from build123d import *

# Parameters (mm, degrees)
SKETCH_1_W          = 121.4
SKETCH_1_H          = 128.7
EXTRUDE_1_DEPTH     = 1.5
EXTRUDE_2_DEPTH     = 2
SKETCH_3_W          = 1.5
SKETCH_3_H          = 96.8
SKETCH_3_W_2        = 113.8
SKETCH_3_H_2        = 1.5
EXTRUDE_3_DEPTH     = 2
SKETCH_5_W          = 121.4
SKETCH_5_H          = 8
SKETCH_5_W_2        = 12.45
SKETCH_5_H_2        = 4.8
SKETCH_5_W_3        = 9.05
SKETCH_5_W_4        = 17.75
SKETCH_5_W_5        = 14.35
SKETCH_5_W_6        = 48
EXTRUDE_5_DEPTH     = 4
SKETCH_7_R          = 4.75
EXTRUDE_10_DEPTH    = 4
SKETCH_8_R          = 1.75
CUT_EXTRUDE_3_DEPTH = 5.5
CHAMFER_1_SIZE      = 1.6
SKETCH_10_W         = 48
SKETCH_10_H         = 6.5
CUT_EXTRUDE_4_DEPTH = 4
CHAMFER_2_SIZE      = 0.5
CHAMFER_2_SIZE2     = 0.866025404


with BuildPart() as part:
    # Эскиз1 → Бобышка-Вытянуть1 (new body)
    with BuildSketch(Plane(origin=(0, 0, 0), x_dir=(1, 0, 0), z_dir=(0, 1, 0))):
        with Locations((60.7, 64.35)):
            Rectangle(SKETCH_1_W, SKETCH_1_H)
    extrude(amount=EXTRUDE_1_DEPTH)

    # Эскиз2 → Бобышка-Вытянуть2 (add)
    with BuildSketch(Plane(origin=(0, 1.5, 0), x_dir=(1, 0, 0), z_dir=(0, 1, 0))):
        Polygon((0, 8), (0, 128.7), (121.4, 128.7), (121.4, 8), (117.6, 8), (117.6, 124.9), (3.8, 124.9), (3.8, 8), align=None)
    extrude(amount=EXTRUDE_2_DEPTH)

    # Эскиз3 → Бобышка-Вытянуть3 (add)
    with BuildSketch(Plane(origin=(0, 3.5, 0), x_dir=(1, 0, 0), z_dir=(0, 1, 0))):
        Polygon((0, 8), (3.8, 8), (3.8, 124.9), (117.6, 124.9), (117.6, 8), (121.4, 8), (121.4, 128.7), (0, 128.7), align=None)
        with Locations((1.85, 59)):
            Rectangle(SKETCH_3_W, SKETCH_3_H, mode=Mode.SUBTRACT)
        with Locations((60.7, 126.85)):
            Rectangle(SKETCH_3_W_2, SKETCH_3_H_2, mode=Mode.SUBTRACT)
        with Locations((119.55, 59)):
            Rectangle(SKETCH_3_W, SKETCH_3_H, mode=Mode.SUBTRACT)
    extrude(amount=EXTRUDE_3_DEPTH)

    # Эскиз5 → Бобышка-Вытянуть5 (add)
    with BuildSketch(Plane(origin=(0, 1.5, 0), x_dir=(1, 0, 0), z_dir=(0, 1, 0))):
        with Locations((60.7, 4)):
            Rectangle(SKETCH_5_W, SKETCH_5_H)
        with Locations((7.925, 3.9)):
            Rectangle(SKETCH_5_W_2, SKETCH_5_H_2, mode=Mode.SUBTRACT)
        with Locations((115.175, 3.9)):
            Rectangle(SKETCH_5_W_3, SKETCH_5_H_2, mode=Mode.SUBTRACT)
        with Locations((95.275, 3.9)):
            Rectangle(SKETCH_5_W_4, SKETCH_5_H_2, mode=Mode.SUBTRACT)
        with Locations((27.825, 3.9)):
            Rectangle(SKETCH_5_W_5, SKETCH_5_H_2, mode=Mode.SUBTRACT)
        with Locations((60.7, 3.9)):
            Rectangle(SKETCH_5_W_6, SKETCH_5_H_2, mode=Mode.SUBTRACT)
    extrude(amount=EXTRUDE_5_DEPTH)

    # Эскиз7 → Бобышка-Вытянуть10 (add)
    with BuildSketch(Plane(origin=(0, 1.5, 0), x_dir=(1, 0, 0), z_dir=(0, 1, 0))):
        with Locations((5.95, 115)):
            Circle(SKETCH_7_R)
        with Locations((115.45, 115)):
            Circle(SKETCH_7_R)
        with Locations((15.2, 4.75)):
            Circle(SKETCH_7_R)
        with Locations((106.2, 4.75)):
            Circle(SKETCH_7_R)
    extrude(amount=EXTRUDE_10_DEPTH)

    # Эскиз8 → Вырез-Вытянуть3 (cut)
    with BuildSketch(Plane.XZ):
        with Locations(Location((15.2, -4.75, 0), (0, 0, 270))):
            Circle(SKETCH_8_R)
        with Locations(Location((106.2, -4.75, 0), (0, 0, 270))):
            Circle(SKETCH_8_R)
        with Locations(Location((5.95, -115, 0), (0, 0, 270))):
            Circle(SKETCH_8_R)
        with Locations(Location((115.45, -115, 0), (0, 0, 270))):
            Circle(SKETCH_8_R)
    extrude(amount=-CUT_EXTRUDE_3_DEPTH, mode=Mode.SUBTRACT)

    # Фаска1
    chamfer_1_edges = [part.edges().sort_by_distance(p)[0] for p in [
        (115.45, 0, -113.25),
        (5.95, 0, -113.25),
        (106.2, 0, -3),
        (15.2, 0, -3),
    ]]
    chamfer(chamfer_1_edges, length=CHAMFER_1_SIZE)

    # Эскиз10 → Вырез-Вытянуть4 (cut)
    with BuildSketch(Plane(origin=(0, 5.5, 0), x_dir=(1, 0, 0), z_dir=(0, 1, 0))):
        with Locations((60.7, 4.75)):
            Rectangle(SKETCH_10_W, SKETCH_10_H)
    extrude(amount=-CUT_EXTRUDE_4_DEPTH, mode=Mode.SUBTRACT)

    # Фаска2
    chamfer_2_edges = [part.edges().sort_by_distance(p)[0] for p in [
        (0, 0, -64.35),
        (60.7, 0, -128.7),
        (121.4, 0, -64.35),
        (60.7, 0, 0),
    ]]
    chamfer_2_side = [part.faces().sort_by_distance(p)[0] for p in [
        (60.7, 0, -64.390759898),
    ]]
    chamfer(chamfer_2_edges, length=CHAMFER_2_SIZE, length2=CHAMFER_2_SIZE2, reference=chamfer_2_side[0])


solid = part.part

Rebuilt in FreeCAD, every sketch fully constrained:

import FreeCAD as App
import Part
import Sketcher


def edges_at(feature, points):
    """Names of the edges that pass closest to the given points."""
    edges = feature.Shape.Edges
    near = lambda p: min(range(len(edges)), key=lambda i: edges[i].distToShape(Part.Vertex(*p))[0])
    return sorted({f"Edge{near(p) + 1}" for p in points})

doc = App.newDocument("Part")
body = doc.addObject("PartDesign::Body", "Body")

# Sketch on XZ plane
sketch1 = body.newObject("Sketcher::SketchObject", "Sketch")
sketch1.AttachmentSupport = (doc.getObject("XZ_Plane"), [""])
sketch1.MapMode = "FlatFace"
sketch1.addGeometry(Part.LineSegment(App.Vector(0, -128.7, 0), App.Vector(0, 0, 0)), False)
sketch1.addGeometry(Part.LineSegment(App.Vector(0, 0, 0), App.Vector(121.4, 0, 0)), False)
sketch1.addGeometry(Part.LineSegment(App.Vector(121.4, 0, 0), App.Vector(121.4, -128.7, 0)), False)
sketch1.addGeometry(Part.LineSegment(App.Vector(121.4, -128.7, 0), App.Vector(0, -128.7, 0)), False)
sketch1.addConstraint(Sketcher.Constraint("Coincident", 0, 2, 1, 1))
sketch1.addConstraint(Sketcher.Constraint("Coincident", 1, 2, 2, 1))
sketch1.addConstraint(Sketcher.Constraint("Coincident", 2, 2, 3, 1))
sketch1.addConstraint(Sketcher.Constraint("Coincident", 3, 2, 0, 1))
sketch1.addConstraint(Sketcher.Constraint("Vertical", 0))
sketch1.addConstraint(Sketcher.Constraint("Horizontal", 1))
sketch1.addConstraint(Sketcher.Constraint("Vertical", 2))
sketch1.addConstraint(Sketcher.Constraint("Horizontal", 3))
sketch1.addConstraint(Sketcher.Constraint("Coincident", 0, 2, -1, 1))
sketch1.addConstraint(Sketcher.Constraint("DistanceX", 1, 1, 1, 2, 121.4))
sketch1.addConstraint(Sketcher.Constraint("DistanceY", 0, 1, 0, 2, 128.7))
pad1 = body.newObject("PartDesign::Pad", "Pad")
pad1.Profile = sketch1
pad1.Length = 1.5
pad1.Reversed = True

# Sketch on XZ plane
sketch2 = body.newObject("Sketcher::SketchObject", "Sketch001")
sketch2.AttachmentSupport = (doc.getObject("XZ_Plane"), [""])
sketch2.MapMode = "FlatFace"
sketch2.AttachmentOffset = App.Placement(App.Vector(0, 0, -1.5), App.Rotation())
sketch2.addGeometry(Part.LineSegment(App.Vector(0, -128.7, 0), App.Vector(0, -8, 0)), False)
sketch2.addGeometry(Part.LineSegment(App.Vector(0, -8, 0), App.Vector(3.8, -8, 0)), False)
sketch2.addGeometry(Part.LineSegment(App.Vector(3.8, -8, 0), App.Vector(3.8, -124.9, 0)), False)
sketch2.addGeometry(Part.LineSegment(App.Vector(3.8, -124.9, 0), App.Vector(117.6, -124.9, 0)), False)
sketch2.addGeometry(Part.LineSegment(App.Vector(117.6, -124.9, 0), App.Vector(117.6, -8, 0)), False)
sketch2.addGeometry(Part.LineSegment(App.Vector(117.6, -8, 0), App.Vector(121.4, -8, 0)), False)
sketch2.addGeometry(Part.LineSegment(App.Vector(121.4, -8, 0), App.Vector(121.4, -128.7, 0)), False)
sketch2.addGeometry(Part.LineSegment(App.Vector(121.4, -128.7, 0), App.Vector(0, -128.7, 0)), False)
sketch2.addConstraint(Sketcher.Constraint("Coincident", 0, 2, 1, 1))
sketch2.addConstraint(Sketcher.Constraint("Coincident", 1, 2, 2, 1))
sketch2.addConstraint(Sketcher.Constraint("Coincident", 2, 2, 3, 1))
sketch2.addConstraint(Sketcher.Constraint("Coincident", 3, 2, 4, 1))
sketch2.addConstraint(Sketcher.Constraint("Coincident", 4, 2, 5, 1))
sketch2.addConstraint(Sketcher.Constraint("Coincident", 5, 2, 6, 1))
sketch2.addConstraint(Sketcher.Constraint("Coincident", 6, 2, 7, 1))
sketch2.addConstraint(Sketcher.Constraint("Coincident", 7, 2, 0, 1))
sketch2.addConstraint(Sketcher.Constraint("Vertical", 0))
sketch2.addConstraint(Sketcher.Constraint("Horizontal", 1))
sketch2.addConstraint(Sketcher.Constraint("Vertical", 2))
sketch2.addConstraint(Sketcher.Constraint("Horizontal", 3))
sketch2.addConstraint(Sketcher.Constraint("Vertical", 4))
sketch2.addConstraint(Sketcher.Constraint("Horizontal", 5))
sketch2.addConstraint(Sketcher.Constraint("Vertical", 6))
sketch2.addConstraint(Sketcher.Constraint("Horizontal", 7))
sketch2.addConstraint(Sketcher.Constraint("PointOnObject", 0, 2, -2))
sketch2.addConstraint(Sketcher.Constraint("Horizontal", 1, 2, 4, 2))
sketch2.addConstraint(Sketcher.Constraint("Equal", 1, 5))
sketch2.addConstraint(Sketcher.Constraint("DistanceX", 1, 1, 1, 2, 3.8))
sketch2.addConstraint(Sketcher.Constraint("DistanceX", 3, 1, 3, 2, 113.8))
sketch2.addConstraint(Sketcher.Constraint("DistanceY", 0, 1, 0, 2, 120.7))
sketch2.addConstraint(Sketcher.Constraint("DistanceY", 2, 2, 2, 1, 116.9))
sketch2.addConstraint(Sketcher.Constraint("DistanceY", 0, 2, -1, 1, 8.0))
pad2 = body.newObject("PartDesign::Pad", "Pad001")
pad2.Profile = sketch2
pad2.Length = 2
pad2.Reversed = True

# Sketch on XZ plane
sketch3 = body.newObject("Sketcher::SketchObject", "Sketch002")
sketch3.AttachmentSupport = (doc.getObject("XZ_Plane"), [""])
sketch3.MapMode = "FlatFace"
sketch3.AttachmentOffset = App.Placement(App.Vector(0, 0, -3.5), App.Rotation())
sketch3.addGeometry(Part.LineSegment(App.Vector(0, -8, 0), App.Vector(3.8, -8, 0)), False)
sketch3.addGeometry(Part.LineSegment(App.Vector(3.8, -8, 0), App.Vector(3.8, -124.9, 0)), False)
sketch3.addGeometry(Part.LineSegment(App.Vector(3.8, -124.9, 0), App.Vector(117.6, -124.9, 0)), False)
sketch3.addGeometry(Part.LineSegment(App.Vector(117.6, -124.9, 0), App.Vector(117.6, -8, 0)), False)
sketch3.addGeometry(Part.LineSegment(App.Vector(117.6, -8, 0), App.Vector(121.4, -8, 0)), False)
sketch3.addGeometry(Part.LineSegment(App.Vector(121.4, -8, 0), App.Vector(121.4, -128.7, 0)), False)
sketch3.addGeometry(Part.LineSegment(App.Vector(121.4, -128.7, 0), App.Vector(0, -128.7, 0)), False)
sketch3.addGeometry(Part.LineSegment(App.Vector(0, -128.7, 0), App.Vector(0, -8, 0)), False)
sketch3.addGeometry(Part.LineSegment(App.Vector(2.6, -10.6, 0), App.Vector(1.1, -10.6, 0)), False)
sketch3.addGeometry(Part.LineSegment(App.Vector(1.1, -10.6, 0), App.Vector(1.1, -107.4, 0)), False)
sketch3.addGeometry(Part.LineSegment(App.Vector(1.1, -107.4, 0), App.Vector(2.6, -107.4, 0)), False)
sketch3.addGeometry(Part.LineSegment(App.Vector(2.6, -107.4, 0), App.Vector(2.6, -10.6, 0)), False)
sketch3.addGeometry(Part.LineSegment(App.Vector(120.3, -10.6, 0), App.Vector(118.8, -10.6, 0)), False)
sketch3.addGeometry(Part.LineSegment(App.Vector(118.8, -10.6, 0), App.Vector(118.8, -107.4, 0)), False)
sketch3.addGeometry(Part.LineSegment(App.Vector(118.8, -107.4, 0), App.Vector(120.3, -107.4, 0)), False)
sketch3.addGeometry(Part.LineSegment(App.Vector(120.3, -107.4, 0), App.Vector(120.3, -10.6, 0)), False)
sketch3.addGeometry(Part.LineSegment(App.Vector(117.6, -126.1, 0), App.Vector(3.8, -126.1, 0)), False)
sketch3.addGeometry(Part.LineSegment(App.Vector(3.8, -126.1, 0), App.Vector(3.8, -127.6, 0)), False)
sketch3.addGeometry(Part.LineSegment(App.Vector(3.8, -127.6, 0), App.Vector(117.6, -127.6, 0)), False)
sketch3.addGeometry(Part.LineSegment(App.Vector(117.6, -127.6, 0), App.Vector(117.6, -126.1, 0)), False)
sketch3.addConstraint(Sketcher.Constraint("Coincident", 0, 2, 1, 1))
sketch3.addConstraint(Sketcher.Constraint("Coincident", 1, 2, 2, 1))
sketch3.addConstraint(Sketcher.Constraint("Coincident", 2, 2, 3, 1))
sketch3.addConstraint(Sketcher.Constraint("Coincident", 3, 2, 4, 1))
sketch3.addConstraint(Sketcher.Constraint("Coincident", 4, 2, 5, 1))
sketch3.addConstraint(Sketcher.Constraint("Coincident", 5, 2, 6, 1))
sketch3.addConstraint(Sketcher.Constraint("Coincident", 6, 2, 7, 1))
sketch3.addConstraint(Sketcher.Constraint("Coincident", 7, 2, 0, 1))
sketch3.addConstraint(Sketcher.Constraint("Coincident", 8, 2, 9, 1))
sketch3.addConstraint(Sketcher.Constraint("Coincident", 9, 2, 10, 1))
sketch3.addConstraint(Sketcher.Constraint("Coincident", 10, 2, 11, 1))
sketch3.addConstraint(Sketcher.Constraint("Coincident", 11, 2, 8, 1))
sketch3.addConstraint(Sketcher.Constraint("Coincident", 12, 2, 13, 1))
sketch3.addConstraint(Sketcher.Constraint("Coincident", 13, 2, 14, 1))
sketch3.addConstraint(Sketcher.Constraint("Coincident", 14, 2, 15, 1))
sketch3.addConstraint(Sketcher.Constraint("Coincident", 15, 2, 12, 1))
sketch3.addConstraint(Sketcher.Constraint("Coincident", 16, 2, 17, 1))
sketch3.addConstraint(Sketcher.Constraint("Coincident", 17, 2, 18, 1))
sketch3.addConstraint(Sketcher.Constraint("Coincident", 18, 2, 19, 1))
sketch3.addConstraint(Sketcher.Constraint("Coincident", 19, 2, 16, 1))
sketch3.addConstraint(Sketcher.Constraint("Horizontal", 0))
sketch3.addConstraint(Sketcher.Constraint("Vertical", 1))
sketch3.addConstraint(Sketcher.Constraint("Horizontal", 2))
sketch3.addConstraint(Sketcher.Constraint("Vertical", 3))
sketch3.addConstraint(Sketcher.Constraint("Horizontal", 4))
sketch3.addConstraint(Sketcher.Constraint("Vertical", 5))
sketch3.addConstraint(Sketcher.Constraint("Horizontal", 6))
sketch3.addConstraint(Sketcher.Constraint("Vertical", 7))
sketch3.addConstraint(Sketcher.Constraint("Horizontal", 8))
sketch3.addConstraint(Sketcher.Constraint("Vertical", 9))
sketch3.addConstraint(Sketcher.Constraint("Horizontal", 10))
sketch3.addConstraint(Sketcher.Constraint("Vertical", 11))
sketch3.addConstraint(Sketcher.Constraint("Horizontal", 12))
sketch3.addConstraint(Sketcher.Constraint("Vertical", 13))
sketch3.addConstraint(Sketcher.Constraint("Horizontal", 14))
sketch3.addConstraint(Sketcher.Constraint("Vertical", 15))
sketch3.addConstraint(Sketcher.Constraint("Horizontal", 16))
sketch3.addConstraint(Sketcher.Constraint("Vertical", 17))
sketch3.addConstraint(Sketcher.Constraint("Horizontal", 18))
sketch3.addConstraint(Sketcher.Constraint("Vertical", 19))
sketch3.addConstraint(Sketcher.Constraint("PointOnObject", 6, 2, -2))
sketch3.addConstraint(Sketcher.Constraint("Horizontal", 0, 2, 3, 2))
sketch3.addConstraint(Sketcher.Constraint("Horizontal", 11, 2, 12, 2))
sketch3.addConstraint(Sketcher.Constraint("Horizontal", 10, 2, 13, 2))
sketch3.addConstraint(Sketcher.Constraint("Vertical", 1, 2, 16, 2))
sketch3.addConstraint(Sketcher.Constraint("Vertical", 3, 2, 18, 2))
sketch3.addConstraint(Sketcher.Constraint("Equal", 0, 4))
sketch3.addConstraint(Sketcher.Constraint("Equal", 10, 12))
sketch3.addConstraint(Sketcher.Constraint("Equal", 14, 17))
sketch3.addConstraint(Sketcher.Constraint("DistanceX", 0, 1, 0, 2, 3.8))
sketch3.addConstraint(Sketcher.Constraint("DistanceX", 2, 1, 2, 2, 113.8))
sketch3.addConstraint(Sketcher.Constraint("DistanceX", 8, 2, 8, 1, 1.5))
sketch3.addConstraint(Sketcher.Constraint("DistanceY", 1, 2, 1, 1, 116.9))
sketch3.addConstraint(Sketcher.Constraint("DistanceY", 5, 2, 5, 1, 120.7))
sketch3.addConstraint(Sketcher.Constraint("DistanceY", 9, 2, 9, 1, 96.8))
sketch3.addConstraint(Sketcher.Constraint("DistanceY", 0, 2, -1, 1, 8.0))
sketch3.addConstraint(Sketcher.Constraint("DistanceX", 0, 2, 12, 2, 115.0))
sketch3.addConstraint(Sketcher.Constraint("DistanceX", -1, 1, 8, 2, 1.1))
sketch3.addConstraint(Sketcher.Constraint("DistanceY", 8, 2, -1, 1, 10.6))
sketch3.addConstraint(Sketcher.Constraint("DistanceY", 16, 2, -1, 1, 126.1))
pad3 = body.newObject("PartDesign::Pad", "Pad002")
pad3.Profile = sketch3
pad3.Length = 2
pad3.Reversed = True

# Sketch on XZ plane
sketch4 = body.newObject("Sketcher::SketchObject", "Sketch003")
sketch4.AttachmentSupport = (doc.getObject("XZ_Plane"), [""])
sketch4.MapMode = "FlatFace"
sketch4.AttachmentOffset = App.Placement(App.Vector(0, 0, -1.5), App.Rotation())
sketch4.addGeometry(Part.LineSegment(App.Vector(0, -8, 0), App.Vector(0, 0, 0)), False)
sketch4.addGeometry(Part.LineSegment(App.Vector(0, 0, 0), App.Vector(121.4, 0, 0)), False)
sketch4.addGeometry(Part.LineSegment(App.Vector(121.4, 0, 0), App.Vector(121.4, -8, 0)), False)
sketch4.addGeometry(Part.LineSegment(App.Vector(121.4, -8, 0), App.Vector(0, -8, 0)), False)
sketch4.addGeometry(Part.LineSegment(App.Vector(14.15, -1.5, 0), App.Vector(1.7, -1.5, 0)), False)
sketch4.addGeometry(Part.LineSegment(App.Vector(1.7, -1.5, 0), App.Vector(1.7, -6.3, 0)), False)
sketch4.addGeometry(Part.LineSegment(App.Vector(1.7, -6.3, 0), App.Vector(14.15, -6.3, 0)), False)
sketch4.addGeometry(Part.LineSegment(App.Vector(14.15, -6.3, 0), App.Vector(14.15, -1.5, 0)), False)
sketch4.addGeometry(Part.LineSegment(App.Vector(35, -1.5, 0), App.Vector(20.65, -1.5, 0)), False)
sketch4.addGeometry(Part.LineSegment(App.Vector(20.65, -1.5, 0), App.Vector(20.65, -6.3, 0)), False)
sketch4.addGeometry(Part.LineSegment(App.Vector(20.65, -6.3, 0), App.Vector(35, -6.3, 0)), False)
sketch4.addGeometry(Part.LineSegment(App.Vector(35, -6.3, 0), App.Vector(35, -1.5, 0)), False)
sketch4.addGeometry(Part.LineSegment(App.Vector(84.7, -1.5, 0), App.Vector(36.7, -1.5, 0)), False)
sketch4.addGeometry(Part.LineSegment(App.Vector(36.7, -1.5, 0), App.Vector(36.7, -6.3, 0)), False)
sketch4.addGeometry(Part.LineSegment(App.Vector(36.7, -6.3, 0), App.Vector(84.7, -6.3, 0)), False)
sketch4.addGeometry(Part.LineSegment(App.Vector(84.7, -6.3, 0), App.Vector(84.7, -1.5, 0)), False)
sketch4.addGeometry(Part.LineSegment(App.Vector(104.15, -1.5, 0), App.Vector(86.4, -1.5, 0)), False)
sketch4.addGeometry(Part.LineSegment(App.Vector(86.4, -1.5, 0), App.Vector(86.4, -6.3, 0)), False)
sketch4.addGeometry(Part.LineSegment(App.Vector(86.4, -6.3, 0), App.Vector(104.15, -6.3, 0)), False)
sketch4.addGeometry(Part.LineSegment(App.Vector(104.15, -6.3, 0), App.Vector(104.15, -1.5, 0)), False)
sketch4.addGeometry(Part.LineSegment(App.Vector(119.7, -1.5, 0), App.Vector(110.65, -1.5, 0)), False)
sketch4.addGeometry(Part.LineSegment(App.Vector(110.65, -1.5, 0), App.Vector(110.65, -6.3, 0)), False)
sketch4.addGeometry(Part.LineSegment(App.Vector(110.65, -6.3, 0), App.Vector(119.7, -6.3, 0)), False)
sketch4.addGeometry(Part.LineSegment(App.Vector(119.7, -6.3, 0), App.Vector(119.7, -1.5, 0)), False)
sketch4.addConstraint(Sketcher.Constraint("Coincident", 0, 2, 1, 1))
sketch4.addConstraint(Sketcher.Constraint("Coincident", 1, 2, 2, 1))
sketch4.addConstraint(Sketcher.Constraint("Coincident", 2, 2, 3, 1))
sketch4.addConstraint(Sketcher.Constraint("Coincident", 3, 2, 0, 1))
sketch4.addConstraint(Sketcher.Constraint("Coincident", 4, 2, 5, 1))
sketch4.addConstraint(Sketcher.Constraint("Coincident", 5, 2, 6, 1))
sketch4.addConstraint(Sketcher.Constraint("Coincident", 6, 2, 7, 1))
sketch4.addConstraint(Sketcher.Constraint("Coincident", 7, 2, 4, 1))
sketch4.addConstraint(Sketcher.Constraint("Coincident", 8, 2, 9, 1))
sketch4.addConstraint(Sketcher.Constraint("Coincident", 9, 2, 10, 1))
sketch4.addConstraint(Sketcher.Constraint("Coincident", 10, 2, 11, 1))
sketch4.addConstraint(Sketcher.Constraint("Coincident", 11, 2, 8, 1))
sketch4.addConstraint(Sketcher.Constraint("Coincident", 12, 2, 13, 1))
sketch4.addConstraint(Sketcher.Constraint("Coincident", 13, 2, 14, 1))
sketch4.addConstraint(Sketcher.Constraint("Coincident", 14, 2, 15, 1))
sketch4.addConstraint(Sketcher.Constraint("Coincident", 15, 2, 12, 1))
sketch4.addConstraint(Sketcher.Constraint("Coincident", 16, 2, 17, 1))
sketch4.addConstraint(Sketcher.Constraint("Coincident", 17, 2, 18, 1))
sketch4.addConstraint(Sketcher.Constraint("Coincident", 18, 2, 19, 1))
sketch4.addConstraint(Sketcher.Constraint("Coincident", 19, 2, 16, 1))
sketch4.addConstraint(Sketcher.Constraint("Coincident", 20, 2, 21, 1))
sketch4.addConstraint(Sketcher.Constraint("Coincident", 21, 2, 22, 1))
sketch4.addConstraint(Sketcher.Constraint("Coincident", 22, 2, 23, 1))
sketch4.addConstraint(Sketcher.Constraint("Coincident", 23, 2, 20, 1))
sketch4.addConstraint(Sketcher.Constraint("Vertical", 0))
sketch4.addConstraint(Sketcher.Constraint("Horizontal", 1))
sketch4.addConstraint(Sketcher.Constraint("Vertical", 2))
sketch4.addConstraint(Sketcher.Constraint("Horizontal", 3))
sketch4.addConstraint(Sketcher.Constraint("Horizontal", 4))
sketch4.addConstraint(Sketcher.Constraint("Vertical", 5))
sketch4.addConstraint(Sketcher.Constraint("Horizontal", 6))
sketch4.addConstraint(Sketcher.Constraint("Vertical", 7))
sketch4.addConstraint(Sketcher.Constraint("Horizontal", 8))
sketch4.addConstraint(Sketcher.Constraint("Vertical", 9))
sketch4.addConstraint(Sketcher.Constraint("Horizontal", 10))
sketch4.addConstraint(Sketcher.Constraint("Vertical", 11))
sketch4.addConstraint(Sketcher.Constraint("Horizontal", 12))
sketch4.addConstraint(Sketcher.Constraint("Vertical", 13))
sketch4.addConstraint(Sketcher.Constraint("Horizontal", 14))
sketch4.addConstraint(Sketcher.Constraint("Vertical", 15))
sketch4.addConstraint(Sketcher.Constraint("Horizontal", 16))
sketch4.addConstraint(Sketcher.Constraint("Vertical", 17))
sketch4.addConstraint(Sketcher.Constraint("Horizontal", 18))
sketch4.addConstraint(Sketcher.Constraint("Vertical", 19))
sketch4.addConstraint(Sketcher.Constraint("Horizontal", 20))
sketch4.addConstraint(Sketcher.Constraint("Vertical", 21))
sketch4.addConstraint(Sketcher.Constraint("Horizontal", 22))
sketch4.addConstraint(Sketcher.Constraint("Vertical", 23))
sketch4.addConstraint(Sketcher.Constraint("Coincident", 0, 2, -1, 1))
sketch4.addConstraint(Sketcher.Constraint("Horizontal", 7, 2, 8, 2))
sketch4.addConstraint(Sketcher.Constraint("Horizontal", 6, 2, 9, 2))
sketch4.addConstraint(Sketcher.Constraint("Horizontal", 11, 2, 12, 2))
sketch4.addConstraint(Sketcher.Constraint("Horizontal", 10, 2, 13, 2))
sketch4.addConstraint(Sketcher.Constraint("Horizontal", 15, 2, 16, 2))
sketch4.addConstraint(Sketcher.Constraint("Horizontal", 14, 2, 17, 2))
sketch4.addConstraint(Sketcher.Constraint("Horizontal", 19, 2, 20, 2))
sketch4.addConstraint(Sketcher.Constraint("Horizontal", 18, 2, 21, 2))
sketch4.addConstraint(Sketcher.Constraint("DistanceX", 12, 2, 12, 1, 48.0))
sketch4.addConstraint(Sketcher.Constraint("DistanceY", 0, 1, 0, 2, 8.0))
sketch4.addConstraint(Sketcher.Constraint("DistanceX", 1, 1, 1, 2, 121.4))
sketch4.addConstraint(Sketcher.Constraint("DistanceY", 5, 2, 5, 1, 4.8))
sketch4.addConstraint(Sketcher.Constraint("DistanceX", -1, 1, 10, 2, 35.0))
sketch4.addConstraint(Sketcher.Constraint("DistanceX", 16, 2, 1, 2, 35.0))
sketch4.addConstraint(Sketcher.Constraint("DistanceX", 4, 2, 4, 1, 12.45))
sketch4.addConstraint(Sketcher.Constraint("DistanceX", 8, 2, 8, 1, 14.35))
sketch4.addConstraint(Sketcher.Constraint("DistanceX", 16, 2, 16, 1, 17.75))
sketch4.addConstraint(Sketcher.Constraint("DistanceX", 20, 2, 20, 1, 9.05))
sketch4.addConstraint(Sketcher.Constraint("DistanceX", -1, 1, 4, 2, 1.7))
sketch4.addConstraint(Sketcher.Constraint("DistanceY", 4, 2, -1, 1, 1.5))
sketch4.addConstraint(Sketcher.Constraint("DistanceX", -1, 1, 12, 2, 36.7))
sketch4.addConstraint(Sketcher.Constraint("DistanceX", -1, 1, 22, 2, 119.7))
pad4 = body.newObject("PartDesign::Pad", "Pad003")
pad4.Profile = sketch4
pad4.Length = 4
pad4.Reversed = True

# Sketch on XZ plane
sketch5 = body.newObject("Sketcher::SketchObject", "Sketch004")
sketch5.AttachmentSupport = (doc.getObject("XZ_Plane"), [""])
sketch5.MapMode = "FlatFace"
sketch5.AttachmentOffset = App.Placement(App.Vector(0, 0, -1.5), App.Rotation())
sketch5.addGeometry(Part.Circle(App.Vector(5.95, -115, 0), App.Vector(0, 0, 1), 4.75), False)
sketch5.addGeometry(Part.Circle(App.Vector(115.45, -115, 0), App.Vector(0, 0, 1), 4.75), False)
sketch5.addGeometry(Part.Circle(App.Vector(15.2, -4.75, 0), App.Vector(0, 0, 1), 4.75), False)
sketch5.addGeometry(Part.Circle(App.Vector(106.2, -4.75, 0), App.Vector(0, 0, 1), 4.75), False)
sketch5.addConstraint(Sketcher.Constraint("Equal", 0, 1))
sketch5.addConstraint(Sketcher.Constraint("Equal", 1, 2))
sketch5.addConstraint(Sketcher.Constraint("Equal", 2, 3))
sketch5.addConstraint(Sketcher.Constraint("Horizontal", 0, 3, 1, 3))
sketch5.addConstraint(Sketcher.Constraint("Horizontal", 2, 3, 3, 3))
sketch5.addConstraint(Sketcher.Constraint("Diameter", 0, 9.5))
sketch5.addConstraint(Sketcher.Constraint("DistanceY", 0, 3, -1, 1, 115.0))
sketch5.addConstraint(Sketcher.Constraint("DistanceX", 2, 3, 3, 3, 91.0))
sketch5.addConstraint(Sketcher.Constraint("DistanceX", -1, 1, 2, 3, 15.2))
sketch5.addConstraint(Sketcher.Constraint("DistanceX", 0, 3, 1, 3, 109.5))
sketch5.addConstraint(Sketcher.Constraint("DistanceX", -1, 1, 0, 3, 5.95))
sketch5.addConstraint(Sketcher.Constraint("DistanceY", 2, 3, -1, 1, 4.75))
pad5 = body.newObject("PartDesign::Pad", "Pad004")
pad5.Profile = sketch5
pad5.Length = 4
pad5.Reversed = True

# Sketch on XZ plane
sketch6 = body.newObject("Sketcher::SketchObject", "Sketch005")
sketch6.AttachmentSupport = (doc.getObject("XZ_Plane"), [""])
sketch6.MapMode = "FlatFace"
sketch6.addGeometry(Part.Circle(App.Vector(15.2, -4.75, 0), App.Vector(0, 0, 1), 1.75), False)
sketch6.addGeometry(Part.Circle(App.Vector(106.2, -4.75, 0), App.Vector(0, 0, 1), 1.75), False)
sketch6.addGeometry(Part.Circle(App.Vector(5.95, -115, 0), App.Vector(0, 0, 1), 1.75), False)
sketch6.addGeometry(Part.Circle(App.Vector(115.45, -115, 0), App.Vector(0, 0, 1), 1.75), False)
sketch6.addConstraint(Sketcher.Constraint("Equal", 0, 1))
sketch6.addConstraint(Sketcher.Constraint("Equal", 1, 2))
sketch6.addConstraint(Sketcher.Constraint("Equal", 2, 3))
sketch6.addConstraint(Sketcher.Constraint("Horizontal", 0, 3, 1, 3))
sketch6.addConstraint(Sketcher.Constraint("Horizontal", 2, 3, 3, 3))
sketch6.addConstraint(Sketcher.Constraint("Diameter", 0, 3.5))
sketch6.addConstraint(Sketcher.Constraint("DistanceY", 2, 3, -1, 1, 115.0))
sketch6.addConstraint(Sketcher.Constraint("DistanceX", 0, 3, 1, 3, 91.0))
sketch6.addConstraint(Sketcher.Constraint("DistanceX", -1, 1, 0, 3, 15.2))
sketch6.addConstraint(Sketcher.Constraint("DistanceX", 2, 3, 3, 3, 109.5))
sketch6.addConstraint(Sketcher.Constraint("DistanceY", 0, 3, -1, 1, 4.75))
sketch6.addConstraint(Sketcher.Constraint("DistanceX", -1, 1, 2, 3, 5.95))
pocket1 = body.newObject("PartDesign::Pocket", "Pocket")
pocket1.Profile = sketch6
pocket1.Length = 5.5
doc.recompute()

chamfer = body.newObject("PartDesign::Chamfer", "Chamfer")
chamfer.Base = (pocket1, edges_at(pocket1, [
    (115.45, 0, -113.25),
    (5.95, 0, -113.25),
    (106.2, 0, -3),
    (15.2, 0, -3),
]))
chamfer.Size = 1.6

# Sketch on XZ plane
sketch7 = body.newObject("Sketcher::SketchObject", "Sketch006")
sketch7.AttachmentSupport = (doc.getObject("XZ_Plane"), [""])
sketch7.MapMode = "FlatFace"
sketch7.AttachmentOffset = App.Placement(App.Vector(0, 0, -5.5), App.Rotation())
sketch7.addGeometry(Part.LineSegment(App.Vector(36.7, -8, 0), App.Vector(36.7, -1.5, 0)), False)
sketch7.addGeometry(Part.LineSegment(App.Vector(36.7, -1.5, 0), App.Vector(84.7, -1.5, 0)), False)
sketch7.addGeometry(Part.LineSegment(App.Vector(84.7, -1.5, 0), App.Vector(84.7, -8, 0)), False)
sketch7.addGeometry(Part.LineSegment(App.Vector(84.7, -8, 0), App.Vector(36.7, -8, 0)), False)
sketch7.addConstraint(Sketcher.Constraint("Coincident", 0, 2, 1, 1))
sketch7.addConstraint(Sketcher.Constraint("Coincident", 1, 2, 2, 1))
sketch7.addConstraint(Sketcher.Constraint("Coincident", 2, 2, 3, 1))
sketch7.addConstraint(Sketcher.Constraint("Coincident", 3, 2, 0, 1))
sketch7.addConstraint(Sketcher.Constraint("Vertical", 0))
sketch7.addConstraint(Sketcher.Constraint("Horizontal", 1))
sketch7.addConstraint(Sketcher.Constraint("Vertical", 2))
sketch7.addConstraint(Sketcher.Constraint("Horizontal", 3))
sketch7.addConstraint(Sketcher.Constraint("DistanceX", 1, 1, 1, 2, 48.0))
sketch7.addConstraint(Sketcher.Constraint("DistanceY", 0, 1, 0, 2, 6.5))
sketch7.addConstraint(Sketcher.Constraint("DistanceY", 2, 2, -1, 1, 8.0))
sketch7.addConstraint(Sketcher.Constraint("DistanceX", -1, 1, 0, 2, 36.7))
pocket2 = body.newObject("PartDesign::Pocket", "Pocket001")
pocket2.Profile = sketch7
pocket2.Length = 4
pocket2.Reversed = True
doc.recompute()

chamfer2 = body.newObject("PartDesign::Chamfer", "Chamfer001")
chamfer2.Base = (pocket2, edges_at(pocket2, [
    (0, 0, -64.35),
    (60.7, 0, -128.7),
    (121.4, 0, -64.35),
    (60.7, 0, 0),
]))
chamfer2.ChamferType = "Two distances"
chamfer2.Size = 0.5
chamfer2.Size2 = 0.866025

doc.recompute()
